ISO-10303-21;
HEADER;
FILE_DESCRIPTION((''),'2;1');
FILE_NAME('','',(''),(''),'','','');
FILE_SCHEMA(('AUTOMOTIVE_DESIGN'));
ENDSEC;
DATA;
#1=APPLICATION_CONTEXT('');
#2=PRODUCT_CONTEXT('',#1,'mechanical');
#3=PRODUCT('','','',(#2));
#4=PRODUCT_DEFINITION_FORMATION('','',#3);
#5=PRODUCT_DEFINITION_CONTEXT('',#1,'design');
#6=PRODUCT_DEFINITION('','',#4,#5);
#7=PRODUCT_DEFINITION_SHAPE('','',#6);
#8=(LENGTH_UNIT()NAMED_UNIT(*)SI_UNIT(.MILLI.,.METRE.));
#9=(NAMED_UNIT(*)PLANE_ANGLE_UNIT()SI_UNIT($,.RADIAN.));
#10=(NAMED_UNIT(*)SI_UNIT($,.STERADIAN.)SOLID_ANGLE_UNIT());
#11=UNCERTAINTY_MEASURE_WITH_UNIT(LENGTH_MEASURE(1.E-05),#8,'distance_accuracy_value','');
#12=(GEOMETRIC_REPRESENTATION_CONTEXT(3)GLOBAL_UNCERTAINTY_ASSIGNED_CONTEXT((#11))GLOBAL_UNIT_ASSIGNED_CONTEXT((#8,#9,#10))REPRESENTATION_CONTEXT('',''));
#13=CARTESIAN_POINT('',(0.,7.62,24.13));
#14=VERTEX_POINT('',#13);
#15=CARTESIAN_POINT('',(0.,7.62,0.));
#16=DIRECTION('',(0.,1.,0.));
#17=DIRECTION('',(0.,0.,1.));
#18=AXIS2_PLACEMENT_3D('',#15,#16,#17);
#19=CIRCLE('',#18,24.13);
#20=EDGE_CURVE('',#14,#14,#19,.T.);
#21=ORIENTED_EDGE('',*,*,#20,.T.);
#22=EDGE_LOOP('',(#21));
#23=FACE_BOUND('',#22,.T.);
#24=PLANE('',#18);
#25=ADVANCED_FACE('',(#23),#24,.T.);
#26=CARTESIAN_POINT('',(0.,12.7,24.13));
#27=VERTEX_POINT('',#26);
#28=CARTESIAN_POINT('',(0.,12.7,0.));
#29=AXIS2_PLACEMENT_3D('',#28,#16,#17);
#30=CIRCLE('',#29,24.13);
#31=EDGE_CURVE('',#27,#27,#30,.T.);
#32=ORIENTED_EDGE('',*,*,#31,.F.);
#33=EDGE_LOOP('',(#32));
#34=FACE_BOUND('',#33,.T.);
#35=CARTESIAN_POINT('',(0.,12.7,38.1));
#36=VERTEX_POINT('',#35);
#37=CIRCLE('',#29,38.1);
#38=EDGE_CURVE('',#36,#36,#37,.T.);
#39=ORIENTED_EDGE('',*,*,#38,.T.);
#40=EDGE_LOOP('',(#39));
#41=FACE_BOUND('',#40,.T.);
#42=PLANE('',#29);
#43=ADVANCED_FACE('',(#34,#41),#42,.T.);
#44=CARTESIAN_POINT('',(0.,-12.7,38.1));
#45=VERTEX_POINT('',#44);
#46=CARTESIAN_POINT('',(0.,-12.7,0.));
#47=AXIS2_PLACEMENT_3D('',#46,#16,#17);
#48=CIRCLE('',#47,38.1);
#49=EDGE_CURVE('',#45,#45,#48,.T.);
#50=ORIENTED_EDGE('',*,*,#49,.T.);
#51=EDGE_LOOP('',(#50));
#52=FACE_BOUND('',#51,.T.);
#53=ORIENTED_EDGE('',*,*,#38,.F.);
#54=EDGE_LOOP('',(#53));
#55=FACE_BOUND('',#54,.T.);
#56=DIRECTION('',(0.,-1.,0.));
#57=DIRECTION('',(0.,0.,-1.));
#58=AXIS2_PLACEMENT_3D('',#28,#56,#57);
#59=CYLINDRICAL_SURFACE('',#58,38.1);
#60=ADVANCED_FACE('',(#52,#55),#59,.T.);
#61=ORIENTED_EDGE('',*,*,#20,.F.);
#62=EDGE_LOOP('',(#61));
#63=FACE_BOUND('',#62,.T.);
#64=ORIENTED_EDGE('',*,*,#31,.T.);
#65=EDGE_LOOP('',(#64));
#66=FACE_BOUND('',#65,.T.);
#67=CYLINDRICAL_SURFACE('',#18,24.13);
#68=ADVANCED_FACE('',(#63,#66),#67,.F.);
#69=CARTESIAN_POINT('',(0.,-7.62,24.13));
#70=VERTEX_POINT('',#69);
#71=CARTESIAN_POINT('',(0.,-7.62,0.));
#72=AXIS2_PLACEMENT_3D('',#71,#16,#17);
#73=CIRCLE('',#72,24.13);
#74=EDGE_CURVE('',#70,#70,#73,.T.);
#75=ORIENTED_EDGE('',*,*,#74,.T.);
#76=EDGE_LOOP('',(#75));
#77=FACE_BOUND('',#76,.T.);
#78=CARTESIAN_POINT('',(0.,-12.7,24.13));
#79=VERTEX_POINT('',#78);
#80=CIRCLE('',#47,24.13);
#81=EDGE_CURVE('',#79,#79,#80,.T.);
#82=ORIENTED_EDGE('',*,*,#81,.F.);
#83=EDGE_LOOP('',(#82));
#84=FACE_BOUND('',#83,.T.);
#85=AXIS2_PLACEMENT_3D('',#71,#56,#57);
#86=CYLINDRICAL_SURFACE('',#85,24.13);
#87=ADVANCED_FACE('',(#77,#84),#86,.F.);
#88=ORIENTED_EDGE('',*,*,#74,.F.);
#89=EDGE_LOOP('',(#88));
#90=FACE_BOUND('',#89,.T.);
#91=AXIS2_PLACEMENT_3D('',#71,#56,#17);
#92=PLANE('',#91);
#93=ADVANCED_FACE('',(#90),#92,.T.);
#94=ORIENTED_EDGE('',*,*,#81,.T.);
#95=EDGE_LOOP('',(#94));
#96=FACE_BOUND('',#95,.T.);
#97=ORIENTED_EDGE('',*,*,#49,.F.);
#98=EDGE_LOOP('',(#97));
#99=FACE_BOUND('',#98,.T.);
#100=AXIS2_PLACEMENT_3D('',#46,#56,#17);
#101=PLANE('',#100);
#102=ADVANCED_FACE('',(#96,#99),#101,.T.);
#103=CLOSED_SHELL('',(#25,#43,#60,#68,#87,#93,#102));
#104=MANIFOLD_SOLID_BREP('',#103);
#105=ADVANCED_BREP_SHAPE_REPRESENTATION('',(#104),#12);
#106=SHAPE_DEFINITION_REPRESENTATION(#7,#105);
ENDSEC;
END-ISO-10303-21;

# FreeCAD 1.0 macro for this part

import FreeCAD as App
import Part
import Sketcher

V = App.Vector
Q = App.Units.Quantity

doc = App.newDocument("Part")
body = doc.addObject("PartDesign::Body", "Body")

# Sketch on XZ plane
sketch1 = body.newObject("Sketcher::SketchObject", "Sketch")
sketch1.AttachmentSupport = (doc.getObject("XZ_Plane"), [""])
sketch1.MapMode = "FlatFace"
sketch1.addGeometry(Part.Circle(V(0, 0, 0), V(0, 0, 1), 38), False)
sketch1.addConstraint([
    Sketcher.Constraint("Coincident", 0, 3, -1, 1),
    Sketcher.Constraint("Diameter", 0, Q("3 in")),
])
pad1 = body.newObject("PartDesign::Pad", "Pad")
pad1.Profile = sketch1
pad1.Length = Q("0.5 in")
pad1.Reversed = True

# Sketch on XZ plane
sketch2 = body.newObject("Sketcher::SketchObject", "Sketch001")
sketch2.AttachmentSupport = (doc.getObject("XZ_Plane"), [""])
sketch2.MapMode = "FlatFace"
sketch2.AttachmentOffset = App.Placement(V(0, 0, -0.5 * 25.4), App.Rotation())
sketch2.addGeometry(Part.Circle(V(0, 0, 0), V(0, 0, 1), 24), False)
sketch2.addConstraint([
    Sketcher.Constraint("Coincident", 0, 3, -1, 1),
    Sketcher.Constraint("Diameter", 0, Q("1.9 in")),
])
pocket1 = body.newObject("PartDesign::Pocket", "Pocket")
pocket1.Profile = sketch2
pocket1.Length = Q("0.2 in")
pocket1.Reversed = True
doc.recompute()

mirrored = body.newObject("PartDesign::Mirrored", "Mirrored")
mirrored.Originals = [pad1, pocket1]
mirrored.MirrorPlane = (doc.getObject("XZ_Plane"), [""])
body.Tip = mirrored

doc.recompute()
